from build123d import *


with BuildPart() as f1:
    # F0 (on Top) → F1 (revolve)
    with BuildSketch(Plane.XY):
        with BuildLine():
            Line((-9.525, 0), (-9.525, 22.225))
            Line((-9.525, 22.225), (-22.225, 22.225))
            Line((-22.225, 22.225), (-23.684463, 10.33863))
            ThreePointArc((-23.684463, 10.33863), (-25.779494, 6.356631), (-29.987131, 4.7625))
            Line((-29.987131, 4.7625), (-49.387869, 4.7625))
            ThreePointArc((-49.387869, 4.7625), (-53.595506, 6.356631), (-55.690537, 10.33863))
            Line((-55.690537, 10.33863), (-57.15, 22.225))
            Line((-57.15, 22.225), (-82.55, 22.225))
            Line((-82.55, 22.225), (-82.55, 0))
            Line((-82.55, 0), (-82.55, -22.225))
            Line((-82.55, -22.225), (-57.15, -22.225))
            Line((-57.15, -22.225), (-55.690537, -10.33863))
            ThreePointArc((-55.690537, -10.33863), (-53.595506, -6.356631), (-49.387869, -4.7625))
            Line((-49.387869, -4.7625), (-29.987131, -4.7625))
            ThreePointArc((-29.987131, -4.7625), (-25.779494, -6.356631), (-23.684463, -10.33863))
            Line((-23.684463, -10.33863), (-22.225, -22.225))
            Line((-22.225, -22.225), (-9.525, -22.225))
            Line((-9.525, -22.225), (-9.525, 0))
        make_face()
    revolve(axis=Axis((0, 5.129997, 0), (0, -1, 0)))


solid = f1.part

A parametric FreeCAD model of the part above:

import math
import FreeCAD as App
import Part
import Sketcher
from FreeCAD import Vector
Q = App.Units.Quantity

doc = App.newDocument("Part")
params = doc.addObject("Spreadsheet::Sheet", "Params")
for row, (alias, value) in enumerate([
    ("sketch1_width", "1 in"),
    ("sketch1_radius", "0.25 in"),
    ("sketch1_width2", "0.5 in"),
    ("sketch1_height", "1.75 in"),
    ("revolution_angle", "360 deg"),
], start=1):
    params.set(f"A{row}", alias)
    params.set(f"B{row}", "=" + value)
    params.setAlias(f"B{row}", alias)

body = doc.addObject("PartDesign::Body", "Body")

sketch1 = doc.addObject("Sketcher::SketchObject", "Sketch")
body.addObject(sketch1)
sketch1.AttachmentSupport = (doc.XY_Plane, [""])
sketch1.MapMode = "FlatFace"
sketch1.addGeometry(Part.LineSegment(Vector(-10, 22, 0), Vector(-22, 22, 0)), False)
sketch1.addGeometry(Part.LineSegment(Vector(-22, 22, 0), Vector(-24, 10, 0)), False)
sketch1.addGeometry(Part.ArcOfCircle(Part.Circle(Vector(-30, 11, 0), Vector(0, 0, 1), 6), math.radians(-90), math.radians(-7)), False)
sketch1.addGeometry(Part.LineSegment(Vector(-30, 5, 0), Vector(-49, 5, 0)), False)
sketch1.addGeometry(Part.ArcOfCircle(Part.Circle(Vector(-49, 11, 0), Vector(0, 0, 1), 6), math.radians(-173), math.radians(-90)), False)
sketch1.addGeometry(Part.LineSegment(Vector(-56, 10, 0), Vector(-57, 22, 0)), False)
sketch1.addGeometry(Part.LineSegment(Vector(-57, 22, 0), Vector(-83, 22, 0)), False)
sketch1.addGeometry(Part.LineSegment(Vector(-83, 22, 0), Vector(-83, -22, 0)), False)
sketch1.addGeometry(Part.LineSegment(Vector(-83, -22, 0), Vector(-57, -22, 0)), False)
sketch1.addGeometry(Part.LineSegment(Vector(-57, -22, 0), Vector(-56, -10, 0)), False)
sketch1.addGeometry(Part.ArcOfCircle(Part.Circle(Vector(-49, -11, 0), Vector(0, 0, 1), 6), math.radians(90), math.radians(173)), False)
sketch1.addGeometry(Part.LineSegment(Vector(-49, -5, 0), Vector(-30, -5, 0)), False)
sketch1.addGeometry(Part.ArcOfCircle(Part.Circle(Vector(-30, -11, 0), Vector(0, 0, 1), 6), math.radians(7), math.radians(90)), False)
sketch1.addGeometry(Part.LineSegment(Vector(-24, -10, 0), Vector(-22, -22, 0)), False)
sketch1.addGeometry(Part.LineSegment(Vector(-22, -22, 0), Vector(-10, -22, 0)), False)
sketch1.addGeometry(Part.LineSegment(Vector(-10, -22, 0), Vector(-10, 22, 0)), False)
sketch1.addConstraint(Sketcher.Constraint("Coincident", 0, 2, 1, 1))
sketch1.addConstraint(Sketcher.Constraint("Tangent", 1, 2, 2, 2))
sketch1.addConstraint(Sketcher.Constraint("Tangent", 2, 1, 3, 1))
sketch1.addConstraint(Sketcher.Constraint("Tangent", 3, 2, 4, 2))
sketch1.addConstraint(Sketcher.Constraint("Tangent", 4, 1, 5, 1))
sketch1.addConstraint(Sketcher.Constraint("Coincident", 5, 2, 6, 1))
sketch1.addConstraint(Sketcher.Constraint("Coincident", 6, 2, 7, 1))
sketch1.addConstraint(Sketcher.Constraint("Coincident", 7, 2, 8, 1))
sketch1.addConstraint(Sketcher.Constraint("Coincident", 8, 2, 9, 1))
sketch1.addConstraint(Sketcher.Constraint("Tangent", 9, 2, 10, 2))
sketch1.addConstraint(Sketcher.Constraint("Tangent", 10, 1, 11, 1))
sketch1.addConstraint(Sketcher.Constraint("Tangent", 11, 2, 12, 2))
sketch1.addConstraint(Sketcher.Constraint("Tangent", 12, 1, 13, 1))
sketch1.addConstraint(Sketcher.Constraint("Coincident", 13, 2, 14, 1))
sketch1.addConstraint(Sketcher.Constraint("Coincident", 14, 2, 15, 1))
sketch1.addConstraint(Sketcher.Constraint("Coincident", 15, 2, 0, 1))
sketch1.addConstraint(Sketcher.Constraint("Horizontal", 0))
sketch1.addConstraint(Sketcher.Constraint("Horizontal", 3))
sketch1.addConstraint(Sketcher.Constraint("Horizontal", 6))
sketch1.addConstraint(Sketcher.Constraint("Vertical", 7))
sketch1.addConstraint(Sketcher.Constraint("Horizontal", 8))
sketch1.addConstraint(Sketcher.Constraint("Horizontal", 11))
sketch1.addConstraint(Sketcher.Constraint("Horizontal", 14))
sketch1.addConstraint(Sketcher.Constraint("Vertical", 15))
sketch1.addConstraint(Sketcher.Constraint("Equal", 2, 4))
sketch1.addConstraint(Sketcher.Constraint("Equal", 4, 10))
sketch1.addConstraint(Sketcher.Constraint("Equal", 10, 12))
sketch1.addConstraint(Sketcher.Constraint("Symmetric", 4, 3, 10, 3, -1))
sketch1.addConstraint(Sketcher.Constraint("Symmetric", 5, 2, 8, 2, -1))
sketch1.addConstraint(Sketcher.Constraint("Symmetric", 1, 2, 12, 1, -1))
sketch1.addConstraint(Sketcher.Constraint("Parallel", 1, 9))
sketch1.addConstraint(Sketcher.Constraint("Horizontal", 0, 2, 5, 2))
sketch1.addConstraint(Sketcher.Constraint("Horizontal", 8, 2, 13, 2))
sketch1.addConstraint(Sketcher.Constraint("DistanceX", 6, 2, 6, 1, Q("1 in")))
sketch1.addConstraint(Sketcher.Constraint("Radius", 2, Q("0.25 in")))
sketch1.addConstraint(Sketcher.Constraint("DistanceX", 0, 2, 0, 1, Q("0.5 in")))
sketch1.addConstraint(Sketcher.Constraint("Angle", 1, Q("-97.000001 deg")))
sketch1.addConstraint(Sketcher.Constraint("DistanceY", 7, 2, 7, 1, Q("1.75 in")))
sketch1.addConstraint(Sketcher.Constraint("DistanceX", 5, 2, -1, 1, Q("2.25 in")))
sketch1.addConstraint(Sketcher.Constraint("DistanceY", -1, 1, 2, 3, Q("0.4375 in")))
sketch1.addConstraint(Sketcher.Constraint("DistanceX", 0, 2, -1, 1, Q("0.875 in")))
sketch1.setExpression("Constraints[33]", "Params.sketch1_width")
sketch1.setExpression("Constraints[34]", "Params.sketch1_radius")
sketch1.setExpression("Constraints[35]", "Params.sketch1_width2")
sketch1.setExpression("Constraints[37]", "Params.sketch1_height")
revolution = doc.addObject("PartDesign::Revolution", "Revolution")
body.addObject(revolution)
revolution.Profile = sketch1
revolution.ReferenceAxis = (sketch1, ["V_Axis"])
revolution.setExpression("Angle", "Params.revolution_angle")

doc.recompute()
